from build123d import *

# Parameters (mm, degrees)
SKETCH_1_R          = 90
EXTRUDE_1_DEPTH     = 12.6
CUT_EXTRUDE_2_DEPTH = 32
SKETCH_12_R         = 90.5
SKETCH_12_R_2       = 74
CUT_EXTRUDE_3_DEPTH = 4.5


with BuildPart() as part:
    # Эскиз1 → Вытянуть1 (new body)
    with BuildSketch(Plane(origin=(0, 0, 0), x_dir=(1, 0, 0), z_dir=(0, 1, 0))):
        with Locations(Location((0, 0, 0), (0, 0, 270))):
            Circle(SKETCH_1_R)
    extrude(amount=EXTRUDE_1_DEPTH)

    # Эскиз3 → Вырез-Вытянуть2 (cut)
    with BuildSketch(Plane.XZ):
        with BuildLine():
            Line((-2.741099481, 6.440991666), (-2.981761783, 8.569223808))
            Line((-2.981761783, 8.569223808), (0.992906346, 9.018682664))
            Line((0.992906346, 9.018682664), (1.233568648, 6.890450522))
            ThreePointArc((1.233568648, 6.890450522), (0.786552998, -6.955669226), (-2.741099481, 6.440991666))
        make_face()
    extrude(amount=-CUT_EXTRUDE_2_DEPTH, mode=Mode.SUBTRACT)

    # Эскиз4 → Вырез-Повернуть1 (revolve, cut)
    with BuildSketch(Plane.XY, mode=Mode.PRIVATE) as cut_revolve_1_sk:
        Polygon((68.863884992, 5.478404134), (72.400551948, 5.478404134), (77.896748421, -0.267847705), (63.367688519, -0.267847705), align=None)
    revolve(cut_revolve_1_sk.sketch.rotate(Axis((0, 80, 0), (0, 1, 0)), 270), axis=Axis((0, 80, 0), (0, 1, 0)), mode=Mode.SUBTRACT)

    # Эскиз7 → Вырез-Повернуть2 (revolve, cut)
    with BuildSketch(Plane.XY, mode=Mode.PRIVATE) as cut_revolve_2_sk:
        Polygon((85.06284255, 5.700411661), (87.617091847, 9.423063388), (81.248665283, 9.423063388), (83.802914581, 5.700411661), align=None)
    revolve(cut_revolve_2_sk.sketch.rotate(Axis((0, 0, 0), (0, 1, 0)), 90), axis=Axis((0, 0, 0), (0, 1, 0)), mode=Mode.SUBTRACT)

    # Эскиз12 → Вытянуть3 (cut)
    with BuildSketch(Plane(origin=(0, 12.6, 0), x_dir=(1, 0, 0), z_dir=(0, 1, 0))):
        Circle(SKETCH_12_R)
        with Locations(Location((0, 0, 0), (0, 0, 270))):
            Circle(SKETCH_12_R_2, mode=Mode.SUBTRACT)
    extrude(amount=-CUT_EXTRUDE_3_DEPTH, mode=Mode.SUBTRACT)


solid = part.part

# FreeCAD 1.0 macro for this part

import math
import FreeCAD as App
import Part
import Sketcher


def add_polygon(sketch, points):
    """Adds a closed chain of lines whose ends are joined by coincident constraints."""
    first, n = sketch.GeometryCount, len(points)
    for a, b in zip(points, points[1:] + points[:1]):
        sketch.addGeometry(Part.LineSegment(App.Vector(*a, 0), App.Vector(*b, 0)), False)
    for i in range(n):
        sketch.addConstraint(Sketcher.Constraint("Coincident", first + i, 2, first + (i + 1) % n, 1))

doc = App.newDocument("Part")
params = doc.addObject("Spreadsheet::Sheet", "Params")
for row, (alias, value) in enumerate([
    ("sketch1_diameter", "180 mm"),
    ("pad1_length", "12.6 mm"),
    ("sketch2_radius", "7 mm"),
    ("sketch2_length", "4 mm"),
    ("pocket1_length", "32 mm"),
    ("groove_angle", "360 deg"),
    ("groove2_angle", "360 deg"),
    ("sketch5_diameter", "181 mm"),
    ("sketch5_diameter2", "148 mm"),
    ("pocket2_length", "4.5 mm"),
], start=1):
    params.set(f"A{row}", alias)
    params.set(f"B{row}", "=" + value)
    params.setAlias(f"B{row}", alias)

body = doc.addObject("PartDesign::Body", "Body")

# Sketch on XZ plane
sketch1 = body.newObject("Sketcher::SketchObject", "Sketch")
sketch1.AttachmentSupport = (doc.getObject("XZ_Plane"), [""])
sketch1.MapMode = "FlatFace"
sketch1.addGeometry(Part.Circle(App.Vector(0, 0, 0), App.Vector(0, 0, 1), 90), False)
sketch1.addConstraint(Sketcher.Constraint("Coincident", 0, 3, -1, 1))
sketch1.addConstraint(Sketcher.Constraint("Diameter", 0, 180.0))
sketch1.setExpression("Constraints[1]", "Params.sketch1_diameter")
pad1 = body.newObject("PartDesign::Pad", "Pad")
pad1.Profile = sketch1
pad1.setExpression("Length", "Params.pad1_length")
pad1.Reversed = True

# Sketch on XZ plane
sketch2 = body.newObject("Sketcher::SketchObject", "Sketch001")
sketch2.AttachmentSupport = (doc.getObject("XZ_Plane"), [""])
sketch2.MapMode = "FlatFace"
sketch2.addGeometry(Part.LineSegment(App.Vector(-2.981762, 8.569224, 0), App.Vector(-2.741099, 6.440992, 0)), False)
sketch2.addGeometry(Part.ArcOfCircle(Part.Circle(App.Vector(0, 0, 0), App.Vector(0, 0, 1), 7), math.radians(113.053199), math.radians(439.850099)), False)
sketch2.addGeometry(Part.LineSegment(App.Vector(1.233569, 6.890451, 0), App.Vector(0.992906, 9.018683, 0)), False)
sketch2.addGeometry(Part.LineSegment(App.Vector(0.992906, 9.018683, 0), App.Vector(-2.981762, 8.569224, 0)), False)
sketch2.addConstraint(Sketcher.Constraint("Coincident", 0, 2, 1, 1))
sketch2.addConstraint(Sketcher.Constraint("Coincident", 1, 2, 2, 1))
sketch2.addConstraint(Sketcher.Constraint("Coincident", 2, 2, 3, 1))
sketch2.addConstraint(Sketcher.Constraint("Coincident", 3, 2, 0, 1))
sketch2.addConstraint(Sketcher.Constraint("Coincident", 1, 3, -1, 1))
sketch2.addConstraint(Sketcher.Constraint("Parallel", 0, 2))
sketch2.addConstraint(Sketcher.Constraint("Perpendicular", 2, 3))
sketch2.addConstraint(Sketcher.Constraint("Equal", 0, 2))
sketch2.addConstraint(Sketcher.Constraint("Radius", 1, 7.0))
sketch2.addConstraint(Sketcher.Constraint("Distance", 3, 4.0))
sketch2.addConstraint(Sketcher.Constraint("DistanceX", 0, 2, -1, 1, 2.741099))
sketch2.addConstraint(Sketcher.Constraint("DistanceX", 3, 2, -1, 1, 2.981762))
sketch2.setExpression("Constraints[8]", "Params.sketch2_radius")
sketch2.setExpression("Constraints[9]", "Params.sketch2_length")
pocket1 = body.newObject("PartDesign::Pocket", "Pocket")
pocket1.Profile = sketch2
pocket1.setExpression("Length", "Params.pocket1_length")

# Sketch on XY plane
sketch3 = body.newObject("Sketcher::SketchObject", "Sketch002")
sketch3.AttachmentSupport = (doc.getObject("XY_Plane"), [""])
sketch3.MapMode = "FlatFace"
add_polygon(sketch3, [(72.400552, 5.478404), (68.863885, 5.478404), (63.367689, -0.267848), (77.896748, -0.267848)])  # lines 0-3
sketch3.addConstraint(Sketcher.Constraint("Horizontal", 0))
sketch3.addConstraint(Sketcher.Constraint("Horizontal", 2))
sketch3.addConstraint(Sketcher.Constraint("Equal", 1, 3))
sketch3.addConstraint(Sketcher.Constraint("DistanceX", 2, 1, 2, 2, 14.52906))
sketch3.addConstraint(Sketcher.Constraint("DistanceX", 0, 2, 0, 1, 3.536667))
sketch3.addConstraint(Sketcher.Constraint("DistanceX", -1, 1, 1, 2, 63.367689))
sketch3.addConstraint(Sketcher.Constraint("DistanceY", 1, 2, 0, 2, 5.746252))
sketch3.addConstraint(Sketcher.Constraint("DistanceY", -1, 1, 0, 2, 5.478404))
groove = body.newObject("PartDesign::Groove", "Groove")
groove.Profile = sketch3
groove.ReferenceAxis = (sketch3, ["V_Axis"])
groove.setExpression("Angle", "Params.groove_angle")

# Sketch on XY plane
sketch4 = body.newObject("Sketcher::SketchObject", "Sketch003")
sketch4.AttachmentSupport = (doc.getObject("XY_Plane"), [""])
sketch4.MapMode = "FlatFace"
add_polygon(sketch4, [(85.062843, 5.700412), (87.617092, 9.423063), (81.248665, 9.423063), (83.802915, 5.700412)])  # lines 0-3
sketch4.addConstraint(Sketcher.Constraint("Horizontal", 1))
sketch4.addConstraint(Sketcher.Constraint("Horizontal", 3))
sketch4.addConstraint(Sketcher.Constraint("Equal", 0, 2))
sketch4.addConstraint(Sketcher.Constraint("Distance", 0, 4.514679))
sketch4.addConstraint(Sketcher.Constraint("DistanceX", 1, 2, 1, 1, 6.368427))
sketch4.addConstraint(Sketcher.Constraint("DistanceX", 3, 1, 3, 2, 1.259928))
sketch4.addConstraint(Sketcher.Constraint("DistanceX", -1, 1, 0, 2, 87.617092))
sketch4.addConstraint(Sketcher.Constraint("DistanceY", -1, 1, 2, 2, 5.700412))
groove2 = body.newObject("PartDesign::Groove", "Groove001")
groove2.Profile = sketch4
groove2.ReferenceAxis = (sketch4, ["V_Axis"])
groove2.setExpression("Angle", "Params.groove2_angle")

# Sketch on XZ plane
sketch5 = body.newObject("Sketcher::SketchObject", "Sketch004")
sketch5.AttachmentSupport = (doc.getObject("XZ_Plane"), [""])
sketch5.MapMode = "FlatFace"
sketch5.AttachmentOffset = App.Placement(App.Vector(0, 0, -12.6), App.Rotation())
sketch5.addGeometry(Part.Circle(App.Vector(0, 0, 0), App.Vector(0, 0, 1), 90.5), False)
sketch5.addGeometry(Part.Circle(App.Vector(0, 0, 0), App.Vector(0, 0, 1), 74), False)
sketch5.addConstraint(Sketcher.Constraint("Coincident", 0, 3, -1, 1))
sketch5.addConstraint(Sketcher.Constraint("Coincident", 1, 3, -1, 1))
sketch5.addConstraint(Sketcher.Constraint("Diameter", 0, 181.0))
sketch5.addConstraint(Sketcher.Constraint("Diameter", 1, 148.0))
sketch5.setExpression("Constraints[2]", "Params.sketch5_diameter")
sketch5.setExpression("Constraints[3]", "Params.sketch5_diameter2")
pocket2 = body.newObject("PartDesign::Pocket", "Pocket001")
pocket2.Profile = sketch5
pocket2.setExpression("Length", "Params.pocket2_length")
pocket2.Reversed = True

doc.recompute()
